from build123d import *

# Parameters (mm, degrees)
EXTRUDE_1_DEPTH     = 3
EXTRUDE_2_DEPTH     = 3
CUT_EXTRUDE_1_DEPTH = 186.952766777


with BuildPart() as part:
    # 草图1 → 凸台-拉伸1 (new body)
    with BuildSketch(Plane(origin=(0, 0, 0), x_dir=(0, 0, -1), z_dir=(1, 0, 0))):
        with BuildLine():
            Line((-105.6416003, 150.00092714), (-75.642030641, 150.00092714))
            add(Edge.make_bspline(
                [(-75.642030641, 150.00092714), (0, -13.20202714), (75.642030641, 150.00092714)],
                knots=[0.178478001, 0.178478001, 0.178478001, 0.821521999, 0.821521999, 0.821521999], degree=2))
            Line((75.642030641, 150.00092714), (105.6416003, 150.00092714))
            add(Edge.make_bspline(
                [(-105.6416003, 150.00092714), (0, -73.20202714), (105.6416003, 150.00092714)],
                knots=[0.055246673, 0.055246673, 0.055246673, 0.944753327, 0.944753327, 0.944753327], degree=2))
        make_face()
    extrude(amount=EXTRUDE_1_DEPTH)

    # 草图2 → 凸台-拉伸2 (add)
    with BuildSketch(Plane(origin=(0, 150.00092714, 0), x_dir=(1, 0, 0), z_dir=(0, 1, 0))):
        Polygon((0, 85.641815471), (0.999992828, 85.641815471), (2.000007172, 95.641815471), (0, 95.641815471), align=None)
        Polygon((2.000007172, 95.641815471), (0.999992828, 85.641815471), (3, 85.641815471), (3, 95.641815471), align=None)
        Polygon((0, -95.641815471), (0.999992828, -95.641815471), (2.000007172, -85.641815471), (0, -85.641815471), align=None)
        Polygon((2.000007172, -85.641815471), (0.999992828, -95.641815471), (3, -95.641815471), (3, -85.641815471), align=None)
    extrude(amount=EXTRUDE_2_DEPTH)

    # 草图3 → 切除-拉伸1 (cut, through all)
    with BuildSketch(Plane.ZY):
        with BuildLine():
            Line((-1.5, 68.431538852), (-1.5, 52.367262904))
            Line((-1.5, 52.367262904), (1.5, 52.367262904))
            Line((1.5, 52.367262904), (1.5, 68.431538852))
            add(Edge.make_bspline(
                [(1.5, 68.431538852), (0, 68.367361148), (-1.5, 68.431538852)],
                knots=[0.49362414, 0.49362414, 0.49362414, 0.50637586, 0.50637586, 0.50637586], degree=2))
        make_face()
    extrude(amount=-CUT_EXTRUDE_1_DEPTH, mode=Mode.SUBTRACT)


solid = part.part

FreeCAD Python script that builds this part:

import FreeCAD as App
import Part
import Sketcher

V = App.Vector
Q = App.Units.Quantity


def add_polygon(sketch, points):
    """Adds a closed chain of lines whose ends are joined by coincident constraints."""
    first, n = sketch.GeometryCount, len(points)
    for a, b in zip(points, points[1:] + points[:1]):
        sketch.addGeometry(Part.LineSegment(App.Vector(*a, 0), App.Vector(*b, 0)), False)
    for i in range(n):
        sketch.addConstraint(Sketcher.Constraint("Coincident", first + i, 2, first + (i + 1) % n, 1))

doc = App.newDocument("Part")
body = doc.addObject("PartDesign::Body", "Body")

# Sketch on YZ plane
sketch1 = body.newObject("Sketcher::SketchObject", "Sketch")
sketch1.AttachmentSupport = (doc.getObject("YZ_Plane"), [""])
sketch1.MapMode = "FlatFace"
sketch1.addGeometry([
    Part.LineSegment(V(150.000927, 75.642031, 0), V(150.000927, 105.6416, 0)),
    Part.BSplineCurve([V(150.000927, 105.6416, 0), V(-73.202027, 0, 0), V(150.000927, -105.6416, 0)], [3, 3], [0.055246673, 0.944753327], False, 2, [1, 1, 1], False),
    Part.LineSegment(V(150.000927, -105.6416, 0), V(150.000927, -75.642031, 0)),
    Part.BSplineCurve([V(150.000927, 75.642031, 0), V(-13.202027, 0, 0), V(150.000927, -75.642031, 0)], [3, 3], [0.178478001, 0.821521999], False, 2, [1, 1, 1], False),
], False)
sketch1.addConstraint([
    Sketcher.Constraint("Block", 1),
    Sketcher.Constraint("Block", 3),
    Sketcher.Constraint("Coincident", 0, 2, 1, 1),
    Sketcher.Constraint("Coincident", 1, 2, 2, 1),
    Sketcher.Constraint("Coincident", 2, 2, 3, 2),
    Sketcher.Constraint("Coincident", 3, 1, 0, 1),
])
pad1 = body.newObject("PartDesign::Pad", "Pad")
pad1.Profile = sketch1
pad1.Length = 3

# Sketch on XZ plane
sketch2 = body.newObject("Sketcher::SketchObject", "Sketch001")
sketch2.AttachmentSupport = (doc.getObject("XZ_Plane"), [""])
sketch2.MapMode = "FlatFace"
sketch2.AttachmentOffset = App.Placement(V(0, 0, -150.000927), App.Rotation())
add_polygon(sketch2, [(0, -85.6), (3, -85.6), (3, -95.6), (0, -95.6)])  # lines 0-3
add_polygon(sketch2, [(0, 95.6), (3, 95.6), (3, 85.6), (0, 85.6)])  # lines 4-7
sketch2.addConstraint([
    Sketcher.Constraint("Horizontal", 0),
    Sketcher.Constraint("Vertical", 1),
    Sketcher.Constraint("Horizontal", 2),
    Sketcher.Constraint("Vertical", 3),
    Sketcher.Constraint("Horizontal", 4),
    Sketcher.Constraint("Vertical", 5),
    Sketcher.Constraint("Horizontal", 6),
    Sketcher.Constraint("Vertical", 7),
    Sketcher.Constraint("Symmetric", 3, 2, 6, 2, -1, 1),
    Sketcher.Constraint("Symmetric", 1, 2, 4, 2, -1),
    Sketcher.Constraint("PointOnObject", 2, 2, -2),
    Sketcher.Constraint("DistanceX", 0, 1, 0, 2, Q("3 mm")),
    Sketcher.Constraint("DistanceY", 1, 2, 1, 1, Q("10 mm")),
    Sketcher.Constraint("DistanceY", 0, 2, 4, 2, Q("181.283631 mm")),
])
pad2 = body.newObject("PartDesign::Pad", "Pad001")
pad2.Profile = sketch2
pad2.Length = 3
pad2.Reversed = True

# Sketch on YZ plane
sketch3 = body.newObject("Sketcher::SketchObject", "Sketch002")
sketch3.AttachmentSupport = (doc.getObject("YZ_Plane"), [""])
sketch3.MapMode = "FlatFace"
sketch3.addGeometry([
    Part.LineSegment(V(68.431539, -1.5, 0), V(52.367263, -1.5, 0)),
    Part.LineSegment(V(52.367263, -1.5, 0), V(52.367263, 1.5, 0)),
    Part.LineSegment(V(52.367263, 1.5, 0), V(68.431539, 1.5, 0)),
    Part.BSplineCurve([V(68.431539, 1.5, 0), V(68.367361, 0, 0), V(68.431539, -1.5, 0)], [3, 3], [0.49362414, 0.50637586], False, 2, [1, 1, 1], False),
], False)
sketch3.addConstraint([
    Sketcher.Constraint("Block", 3),
    Sketcher.Constraint("Coincident", 0, 2, 1, 1),
    Sketcher.Constraint("Coincident", 1, 2, 2, 1),
    Sketcher.Constraint("Coincident", 2, 2, 3, 1),
    Sketcher.Constraint("Coincident", 3, 2, 0, 1),
    Sketcher.Constraint("Horizontal", 0),
    Sketcher.Constraint("Vertical", 1),
    Sketcher.Constraint("Horizontal", 2),
    Sketcher.Constraint("DistanceX", 0, 2, 0, 1, Q("16.064276 mm")),
])
pocket1 = body.newObject("PartDesign::Pocket", "Pocket")
pocket1.Profile = sketch3
pocket1.Type = "ThroughAll"
pocket1.Reversed = True

doc.recompute()
